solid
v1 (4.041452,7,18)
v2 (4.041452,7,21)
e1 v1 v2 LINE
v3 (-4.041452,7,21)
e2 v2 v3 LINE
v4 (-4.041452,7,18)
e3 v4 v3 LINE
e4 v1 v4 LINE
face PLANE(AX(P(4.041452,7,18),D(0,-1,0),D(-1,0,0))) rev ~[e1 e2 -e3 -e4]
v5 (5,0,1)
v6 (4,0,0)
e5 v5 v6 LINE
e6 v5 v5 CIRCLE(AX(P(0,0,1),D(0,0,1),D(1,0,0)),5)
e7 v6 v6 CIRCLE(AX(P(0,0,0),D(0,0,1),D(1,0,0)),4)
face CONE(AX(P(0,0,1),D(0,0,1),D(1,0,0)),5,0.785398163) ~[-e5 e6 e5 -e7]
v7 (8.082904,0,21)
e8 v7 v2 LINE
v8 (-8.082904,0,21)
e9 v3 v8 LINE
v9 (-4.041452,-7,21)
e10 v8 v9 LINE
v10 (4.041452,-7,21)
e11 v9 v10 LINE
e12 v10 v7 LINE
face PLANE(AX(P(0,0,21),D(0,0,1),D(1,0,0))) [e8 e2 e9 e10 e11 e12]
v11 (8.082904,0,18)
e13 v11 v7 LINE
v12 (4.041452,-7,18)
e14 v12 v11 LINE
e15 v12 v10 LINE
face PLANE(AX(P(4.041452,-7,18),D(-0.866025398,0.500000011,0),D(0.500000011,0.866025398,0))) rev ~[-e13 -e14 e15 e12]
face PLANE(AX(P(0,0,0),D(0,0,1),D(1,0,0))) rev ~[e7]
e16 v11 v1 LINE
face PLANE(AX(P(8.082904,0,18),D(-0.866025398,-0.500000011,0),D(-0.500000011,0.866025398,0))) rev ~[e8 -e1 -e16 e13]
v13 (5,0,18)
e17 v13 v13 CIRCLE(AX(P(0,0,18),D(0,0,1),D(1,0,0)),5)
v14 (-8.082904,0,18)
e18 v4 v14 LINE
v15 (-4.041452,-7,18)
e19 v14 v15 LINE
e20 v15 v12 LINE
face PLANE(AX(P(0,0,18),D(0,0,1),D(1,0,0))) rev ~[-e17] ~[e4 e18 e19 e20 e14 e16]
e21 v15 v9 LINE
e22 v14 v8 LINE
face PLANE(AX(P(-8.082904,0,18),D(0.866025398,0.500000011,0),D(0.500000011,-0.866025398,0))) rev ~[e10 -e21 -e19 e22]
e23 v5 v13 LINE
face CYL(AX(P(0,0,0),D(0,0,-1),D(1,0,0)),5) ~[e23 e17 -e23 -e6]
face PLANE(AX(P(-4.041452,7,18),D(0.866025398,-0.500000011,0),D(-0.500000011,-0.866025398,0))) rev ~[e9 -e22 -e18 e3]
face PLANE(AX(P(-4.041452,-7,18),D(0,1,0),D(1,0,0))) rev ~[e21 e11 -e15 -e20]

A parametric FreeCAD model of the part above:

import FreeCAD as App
import Part
import Sketcher

V = App.Vector
Q = App.Units.Quantity


def edges_at(feature, points):
    """Names of the edges that pass closest to the given points."""
    edges = feature.Shape.Edges
    near = lambda p: min(range(len(edges)), key=lambda i: edges[i].distToShape(Part.Vertex(*p))[0])
    return sorted({f"Edge{near(p) + 1}" for p in points})

doc = App.newDocument("Part")
body = doc.addObject("PartDesign::Body", "Body")

sketch1 = body.newObject("Sketcher::SketchObject", "Sketch")
sketch1.AttachmentSupport = (doc.getObject("XY_Plane"), [""])
sketch1.MapMode = "FlatFace"
sketch1.addGeometry(Part.Circle(V(0, 0, 0), V(0, 0, 1), 5), False)
sketch1.addConstraint([
    Sketcher.Constraint("Coincident", 0, 3, -1, 1),
    Sketcher.Constraint("Diameter", 0, 10.0),
])
pad1 = body.newObject("PartDesign::Pad", "Pad")
pad1.Profile = sketch1
pad1.Length = 18
doc.recompute()

chamfer = body.newObject("PartDesign::Chamfer", "Chamfer")
chamfer.Base = (pad1, edges_at(pad1, [(-5, 0, 0)]))
chamfer.ChamferType = "Two distances"
chamfer.Size = 1
chamfer.Size2 = 1

sketch2 = body.newObject("Sketcher::SketchObject", "Sketch001")
sketch2.AttachmentSupport = (doc.getObject("XY_Plane"), [""])
sketch2.MapMode = "FlatFace"
sketch2.AttachmentOffset = App.Placement(V(0, 0, 18), App.Rotation())
sketch2.addGeometry([
    Part.LineSegment(V(8.082904, 0, 0), V(4.041452, 7, 0)),
    Part.LineSegment(V(4.041452, 7, 0), V(-4.041452, 7, 0)),
    Part.LineSegment(V(-4.041452, 7, 0), V(-8.082904, 0, 0)),
    Part.LineSegment(V(-8.082904, 0, 0), V(-4.041452, -7, 0)),
    Part.LineSegment(V(-4.041452, -7, 0), V(4.041452, -7, 0)),
    Part.LineSegment(V(4.041452, -7, 0), V(8.082904, 0, 0)),
], False)
sketch2.addConstraint([
    Sketcher.Constraint("Coincident", 0, 2, 1, 1),
    Sketcher.Constraint("Coincident", 1, 2, 2, 1),
    Sketcher.Constraint("Coincident", 2, 2, 3, 1),
    Sketcher.Constraint("Coincident", 3, 2, 4, 1),
    Sketcher.Constraint("Coincident", 4, 2, 5, 1),
    Sketcher.Constraint("Coincident", 5, 2, 0, 1),
    Sketcher.Constraint("Horizontal", 1),
    Sketcher.Constraint("Horizontal", 4),
    Sketcher.Constraint("Symmetric", 0, 2, 3, 2, -1, 1),
    Sketcher.Constraint("Symmetric", 2, 2, 5, 2, -1, 1),
    Sketcher.Constraint("PointOnObject", 2, 2, -1),
    Sketcher.Constraint("Parallel", 2, 5),
    Sketcher.Constraint("Vertical", 1, 2, 3, 2),
    Sketcher.Constraint("Angle", 0, Q("120.000001 deg")),
    Sketcher.Constraint("DistanceY", -1, 1, 0, 2, 7.0),
    Sketcher.Constraint("DistanceX", 1, 2, 1, 1, 8.082904),
])
pad2 = body.newObject("PartDesign::Pad", "Pad001")
pad2.Profile = sketch2
pad2.Length = 3

doc.recompute()
